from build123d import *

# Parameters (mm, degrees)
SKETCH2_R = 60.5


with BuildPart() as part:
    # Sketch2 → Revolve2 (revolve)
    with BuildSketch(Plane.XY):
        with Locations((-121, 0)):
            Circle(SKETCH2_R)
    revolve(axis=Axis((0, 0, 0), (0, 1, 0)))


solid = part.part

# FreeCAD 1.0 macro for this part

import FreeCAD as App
import Part
import Sketcher

doc = App.newDocument("Part")
body = doc.addObject("PartDesign::Body", "Body")

# Sketch on XY plane
sketch1 = body.newObject("Sketcher::SketchObject", "Sketch")
sketch1.AttachmentSupport = (doc.getObject("XY_Plane"), [""])
sketch1.MapMode = "FlatFace"
sketch1.addGeometry(Part.Circle(App.Vector(-121, 0, 0), App.Vector(0, 0, 1), 60), False)
sketch1.addConstraint([
    Sketcher.Constraint("PointOnObject", 0, 3, -1),
    Sketcher.Constraint("Diameter", 0, 121.0),
    Sketcher.Constraint("DistanceX", 0, 3, -1, 1, 121.0),
])
revolution = body.newObject("PartDesign::Revolution", "Revolution")
revolution.Profile = sketch1
revolution.ReferenceAxis = (sketch1, ["V_Axis"])
revolution.Angle = 360

doc.recompute()
